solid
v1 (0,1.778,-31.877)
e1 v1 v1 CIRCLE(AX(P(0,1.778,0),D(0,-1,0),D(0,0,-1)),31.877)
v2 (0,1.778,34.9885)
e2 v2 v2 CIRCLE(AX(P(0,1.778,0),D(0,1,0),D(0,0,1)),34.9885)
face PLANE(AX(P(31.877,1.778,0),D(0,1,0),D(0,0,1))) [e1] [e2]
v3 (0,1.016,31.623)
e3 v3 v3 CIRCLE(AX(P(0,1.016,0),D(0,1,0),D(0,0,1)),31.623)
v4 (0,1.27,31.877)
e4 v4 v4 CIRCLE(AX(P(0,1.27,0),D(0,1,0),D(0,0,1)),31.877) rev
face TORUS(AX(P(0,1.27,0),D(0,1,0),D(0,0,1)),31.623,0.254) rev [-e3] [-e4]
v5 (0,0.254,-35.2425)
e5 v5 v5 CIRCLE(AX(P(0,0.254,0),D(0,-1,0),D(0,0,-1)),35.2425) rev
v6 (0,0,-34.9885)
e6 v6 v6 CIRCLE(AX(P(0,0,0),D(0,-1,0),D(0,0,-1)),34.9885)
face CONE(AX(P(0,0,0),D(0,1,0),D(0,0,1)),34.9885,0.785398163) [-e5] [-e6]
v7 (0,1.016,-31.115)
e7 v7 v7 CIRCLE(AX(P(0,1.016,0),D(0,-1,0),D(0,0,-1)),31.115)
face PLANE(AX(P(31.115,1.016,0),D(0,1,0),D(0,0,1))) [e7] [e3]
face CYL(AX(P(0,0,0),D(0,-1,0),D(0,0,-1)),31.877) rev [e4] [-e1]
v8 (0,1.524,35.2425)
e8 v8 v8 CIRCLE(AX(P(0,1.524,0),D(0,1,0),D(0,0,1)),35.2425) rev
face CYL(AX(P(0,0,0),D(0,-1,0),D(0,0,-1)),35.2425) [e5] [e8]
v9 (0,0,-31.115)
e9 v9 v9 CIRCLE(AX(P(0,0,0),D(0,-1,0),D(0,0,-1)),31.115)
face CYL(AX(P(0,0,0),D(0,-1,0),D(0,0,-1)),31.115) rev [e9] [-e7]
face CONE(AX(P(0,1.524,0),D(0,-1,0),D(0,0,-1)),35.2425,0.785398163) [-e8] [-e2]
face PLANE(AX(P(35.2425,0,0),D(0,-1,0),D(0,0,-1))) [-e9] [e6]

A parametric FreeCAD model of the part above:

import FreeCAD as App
import Part
import Sketcher
Q = App.Units.Quantity


def edges_at(feature, points):
    """Names of the edges that pass closest to the given points."""
    edges = feature.Shape.Edges
    near = lambda p: min(range(len(edges)), key=lambda i: edges[i].distToShape(Part.Vertex(*p))[0])
    return sorted({f"Edge{near(p) + 1}" for p in points})


def add_polygon(sketch, points):
    """Adds a closed chain of lines whose ends are joined by coincident constraints."""
    first, n = sketch.GeometryCount, len(points)
    for a, b in zip(points, points[1:] + points[:1]):
        sketch.addGeometry(Part.LineSegment(App.Vector(*a, 0), App.Vector(*b, 0)), False)
    for i in range(n):
        sketch.addConstraint(Sketcher.Constraint("Coincident", first + i, 2, first + (i + 1) % n, 1))

doc = App.newDocument("Part")
params = doc.addObject("Spreadsheet::Sheet", "Params")
for row, (alias, value) in enumerate([
    ("sketch1_width", "0.03 in"),
    ("sketch1_height", "0.04 in"),
    ("revolution_angle", "360 deg"),
    ("chamfer_size", "0.01 in"),
    ("fillet_radius", "0.01 in"),
], start=1):
    params.set(f"A{row}", alias)
    params.set(f"B{row}", "=" + value)
    params.setAlias(f"B{row}", alias)

body = doc.addObject("PartDesign::Body", "Body")

sketch1 = body.newObject("Sketcher::SketchObject", "Sketch")
sketch1.AttachmentSupport = (doc.getObject("XY_Plane"), [""])
sketch1.MapMode = "FlatFace"
add_polygon(sketch1, [(31.115, 1.016), (31.115, 0), (35.2425, 0), (35.2425, 1.778), (31.877, 1.778), (31.877, 1.016)])
sketch1.addConstraint(Sketcher.Constraint("Vertical", 0))
sketch1.addConstraint(Sketcher.Constraint("Horizontal", 1))
sketch1.addConstraint(Sketcher.Constraint("Vertical", 2))
sketch1.addConstraint(Sketcher.Constraint("Horizontal", 3))
sketch1.addConstraint(Sketcher.Constraint("Vertical", 4))
sketch1.addConstraint(Sketcher.Constraint("Horizontal", 5))
sketch1.addConstraint(Sketcher.Constraint("PointOnObject", 0, 2, -1))
sketch1.addConstraint(Sketcher.Constraint("Equal", 5, 4))
sketch1.addConstraint(Sketcher.Constraint("DistanceX", 5, 2, 5, 1, Q("0.03 in")))
sketch1.addConstraint(Sketcher.Constraint("DistanceY", 0, 2, 0, 1, Q("0.04 in")))
sketch1.addConstraint(Sketcher.Constraint("DistanceX", 1, 1, 1, 2, Q("0.1625 in")))
sketch1.addConstraint(Sketcher.Constraint("DistanceX", -1, 1, 0, 2, Q("1.225 in")))
sketch1.setExpression("Constraints[14]", "Params.sketch1_width")
sketch1.setExpression("Constraints[15]", "Params.sketch1_height")
revolution = body.newObject("PartDesign::Revolution", "Revolution")
revolution.Profile = sketch1
revolution.ReferenceAxis = (sketch1, ["V_Axis"])
revolution.setExpression("Angle", "Params.revolution_angle")
doc.recompute()

chamfer = body.newObject("PartDesign::Chamfer", "Chamfer")
chamfer.Base = (revolution, edges_at(revolution, [(0, 0, 35.242), (0, 1.778, 35.242)]))
chamfer.setExpression("Size", "Params.chamfer_size")
doc.recompute()

fillet = body.newObject("PartDesign::Fillet", "Fillet")
fillet.Base = (chamfer, edges_at(chamfer, [(0, 1.016, 31.877)]))
fillet.setExpression("Radius", "Params.fillet_radius")

doc.recompute()
